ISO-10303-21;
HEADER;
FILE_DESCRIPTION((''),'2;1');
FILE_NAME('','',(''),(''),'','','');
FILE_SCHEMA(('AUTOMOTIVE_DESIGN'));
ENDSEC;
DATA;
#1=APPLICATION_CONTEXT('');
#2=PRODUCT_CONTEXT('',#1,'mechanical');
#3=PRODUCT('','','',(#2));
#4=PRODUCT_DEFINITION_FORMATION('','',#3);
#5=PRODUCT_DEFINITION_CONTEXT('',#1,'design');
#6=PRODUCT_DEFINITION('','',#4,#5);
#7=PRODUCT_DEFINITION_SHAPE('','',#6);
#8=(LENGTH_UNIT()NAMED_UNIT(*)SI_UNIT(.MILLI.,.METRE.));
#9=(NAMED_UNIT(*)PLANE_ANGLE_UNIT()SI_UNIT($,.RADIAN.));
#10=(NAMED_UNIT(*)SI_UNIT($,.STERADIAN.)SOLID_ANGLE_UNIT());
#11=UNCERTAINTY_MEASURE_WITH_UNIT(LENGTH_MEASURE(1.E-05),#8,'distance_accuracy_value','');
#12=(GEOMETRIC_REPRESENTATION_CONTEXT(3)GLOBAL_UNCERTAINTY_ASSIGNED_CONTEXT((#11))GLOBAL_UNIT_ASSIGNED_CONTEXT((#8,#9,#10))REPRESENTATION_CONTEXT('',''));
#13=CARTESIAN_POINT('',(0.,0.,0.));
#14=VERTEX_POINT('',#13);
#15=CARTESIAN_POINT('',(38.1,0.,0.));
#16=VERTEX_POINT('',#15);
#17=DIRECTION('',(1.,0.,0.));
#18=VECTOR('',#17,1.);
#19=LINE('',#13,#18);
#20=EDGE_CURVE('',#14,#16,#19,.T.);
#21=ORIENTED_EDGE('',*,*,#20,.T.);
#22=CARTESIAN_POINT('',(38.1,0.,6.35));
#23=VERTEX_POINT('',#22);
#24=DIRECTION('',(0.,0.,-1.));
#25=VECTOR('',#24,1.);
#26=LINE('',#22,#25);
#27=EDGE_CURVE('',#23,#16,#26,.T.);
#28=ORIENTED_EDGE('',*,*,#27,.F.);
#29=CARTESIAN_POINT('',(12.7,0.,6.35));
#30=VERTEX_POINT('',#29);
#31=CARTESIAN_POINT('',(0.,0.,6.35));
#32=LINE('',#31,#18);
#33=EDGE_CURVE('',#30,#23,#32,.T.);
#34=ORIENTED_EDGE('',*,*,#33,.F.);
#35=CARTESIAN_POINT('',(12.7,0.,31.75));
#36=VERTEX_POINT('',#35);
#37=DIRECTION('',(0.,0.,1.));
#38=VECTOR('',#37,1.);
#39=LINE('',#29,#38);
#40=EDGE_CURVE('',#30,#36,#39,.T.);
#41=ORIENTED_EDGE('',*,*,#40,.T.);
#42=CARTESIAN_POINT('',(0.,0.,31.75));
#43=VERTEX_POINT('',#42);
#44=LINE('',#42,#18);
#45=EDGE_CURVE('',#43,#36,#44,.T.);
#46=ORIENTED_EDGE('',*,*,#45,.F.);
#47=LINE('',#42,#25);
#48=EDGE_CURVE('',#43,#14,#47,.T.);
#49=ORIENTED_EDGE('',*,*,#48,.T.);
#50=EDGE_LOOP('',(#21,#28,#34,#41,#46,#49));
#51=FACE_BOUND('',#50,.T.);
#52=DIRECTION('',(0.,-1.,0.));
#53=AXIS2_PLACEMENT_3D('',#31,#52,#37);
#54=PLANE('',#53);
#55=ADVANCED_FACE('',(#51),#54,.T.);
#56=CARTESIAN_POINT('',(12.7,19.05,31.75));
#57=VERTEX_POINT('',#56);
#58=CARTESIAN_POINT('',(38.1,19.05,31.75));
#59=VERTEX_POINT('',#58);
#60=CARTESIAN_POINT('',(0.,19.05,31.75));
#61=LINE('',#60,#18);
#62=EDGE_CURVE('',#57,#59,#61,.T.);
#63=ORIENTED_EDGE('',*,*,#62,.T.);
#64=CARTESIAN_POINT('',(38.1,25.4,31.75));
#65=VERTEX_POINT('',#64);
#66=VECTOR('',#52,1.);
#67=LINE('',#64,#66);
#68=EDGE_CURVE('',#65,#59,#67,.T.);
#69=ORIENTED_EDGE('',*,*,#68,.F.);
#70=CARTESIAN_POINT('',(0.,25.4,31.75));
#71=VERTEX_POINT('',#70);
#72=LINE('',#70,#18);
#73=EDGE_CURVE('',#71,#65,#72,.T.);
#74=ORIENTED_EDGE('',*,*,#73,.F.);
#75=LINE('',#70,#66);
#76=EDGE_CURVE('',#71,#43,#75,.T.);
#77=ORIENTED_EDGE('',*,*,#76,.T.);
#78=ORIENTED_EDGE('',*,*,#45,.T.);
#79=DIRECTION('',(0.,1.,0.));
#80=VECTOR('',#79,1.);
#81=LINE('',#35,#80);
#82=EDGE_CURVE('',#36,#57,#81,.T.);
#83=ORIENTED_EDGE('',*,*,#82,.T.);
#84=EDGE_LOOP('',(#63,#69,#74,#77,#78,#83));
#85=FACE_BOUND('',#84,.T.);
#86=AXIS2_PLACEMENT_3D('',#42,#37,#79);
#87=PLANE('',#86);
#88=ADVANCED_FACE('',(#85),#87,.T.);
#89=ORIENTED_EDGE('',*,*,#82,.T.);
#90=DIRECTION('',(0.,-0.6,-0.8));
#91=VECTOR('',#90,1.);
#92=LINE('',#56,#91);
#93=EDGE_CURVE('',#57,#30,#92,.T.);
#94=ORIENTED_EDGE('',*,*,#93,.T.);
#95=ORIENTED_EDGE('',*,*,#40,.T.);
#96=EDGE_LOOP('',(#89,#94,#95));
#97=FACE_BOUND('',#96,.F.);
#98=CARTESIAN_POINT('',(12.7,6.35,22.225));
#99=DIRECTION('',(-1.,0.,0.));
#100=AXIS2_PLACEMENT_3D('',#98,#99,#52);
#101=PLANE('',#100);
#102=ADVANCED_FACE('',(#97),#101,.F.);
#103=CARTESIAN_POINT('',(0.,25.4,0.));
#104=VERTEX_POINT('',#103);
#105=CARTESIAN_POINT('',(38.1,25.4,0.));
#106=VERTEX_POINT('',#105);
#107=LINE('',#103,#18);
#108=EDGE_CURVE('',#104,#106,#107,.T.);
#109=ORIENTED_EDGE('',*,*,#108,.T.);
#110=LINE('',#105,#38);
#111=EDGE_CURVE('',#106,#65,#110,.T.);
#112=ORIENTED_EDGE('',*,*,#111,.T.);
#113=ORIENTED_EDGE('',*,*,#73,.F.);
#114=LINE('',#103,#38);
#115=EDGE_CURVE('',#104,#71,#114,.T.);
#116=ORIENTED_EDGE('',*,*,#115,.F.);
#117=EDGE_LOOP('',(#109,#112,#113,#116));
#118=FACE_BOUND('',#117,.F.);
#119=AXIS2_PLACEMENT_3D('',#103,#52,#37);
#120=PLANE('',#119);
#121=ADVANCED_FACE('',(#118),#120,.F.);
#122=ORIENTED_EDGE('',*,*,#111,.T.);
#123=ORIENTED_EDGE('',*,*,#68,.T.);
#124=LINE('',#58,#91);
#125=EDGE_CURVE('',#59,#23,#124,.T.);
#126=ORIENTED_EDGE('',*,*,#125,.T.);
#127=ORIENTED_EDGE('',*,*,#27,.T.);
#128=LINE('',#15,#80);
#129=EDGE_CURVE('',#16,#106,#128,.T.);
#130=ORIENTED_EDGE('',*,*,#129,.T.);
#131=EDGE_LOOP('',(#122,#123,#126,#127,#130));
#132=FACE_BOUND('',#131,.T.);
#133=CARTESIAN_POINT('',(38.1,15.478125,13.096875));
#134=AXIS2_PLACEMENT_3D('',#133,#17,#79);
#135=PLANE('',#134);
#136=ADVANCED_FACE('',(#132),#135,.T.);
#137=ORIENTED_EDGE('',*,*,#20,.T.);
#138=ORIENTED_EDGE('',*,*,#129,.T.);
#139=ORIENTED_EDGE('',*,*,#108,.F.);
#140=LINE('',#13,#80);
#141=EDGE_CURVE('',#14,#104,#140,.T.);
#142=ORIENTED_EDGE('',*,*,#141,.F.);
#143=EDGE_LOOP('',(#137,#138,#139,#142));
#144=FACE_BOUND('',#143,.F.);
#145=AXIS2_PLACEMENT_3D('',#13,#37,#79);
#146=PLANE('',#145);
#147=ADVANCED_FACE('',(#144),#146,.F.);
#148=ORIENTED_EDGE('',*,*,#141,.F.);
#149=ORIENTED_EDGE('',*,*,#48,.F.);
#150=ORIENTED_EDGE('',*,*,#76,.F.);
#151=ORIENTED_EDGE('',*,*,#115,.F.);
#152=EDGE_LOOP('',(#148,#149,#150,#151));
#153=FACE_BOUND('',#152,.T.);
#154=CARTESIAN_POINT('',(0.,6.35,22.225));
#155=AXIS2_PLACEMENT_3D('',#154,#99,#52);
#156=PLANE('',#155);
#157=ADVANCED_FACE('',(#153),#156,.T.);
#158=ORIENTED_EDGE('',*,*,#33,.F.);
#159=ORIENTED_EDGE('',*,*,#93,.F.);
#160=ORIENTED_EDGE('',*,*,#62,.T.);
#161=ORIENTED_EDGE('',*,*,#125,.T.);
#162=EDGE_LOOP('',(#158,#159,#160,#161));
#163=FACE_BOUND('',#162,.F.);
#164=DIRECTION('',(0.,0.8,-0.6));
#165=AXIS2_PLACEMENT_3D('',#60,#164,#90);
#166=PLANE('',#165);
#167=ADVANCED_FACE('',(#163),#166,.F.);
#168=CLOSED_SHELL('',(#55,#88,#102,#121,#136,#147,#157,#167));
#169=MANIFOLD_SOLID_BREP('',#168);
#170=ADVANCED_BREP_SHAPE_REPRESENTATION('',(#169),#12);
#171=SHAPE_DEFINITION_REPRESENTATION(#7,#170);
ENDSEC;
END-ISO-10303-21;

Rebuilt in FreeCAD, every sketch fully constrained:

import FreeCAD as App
import Part
import Sketcher
Q = App.Units.Quantity

doc = App.newDocument("Part")
body = doc.addObject("PartDesign::Body", "Body")

sketch1 = doc.addObject("Sketcher::SketchObject", "Sketch")
body.addObject(sketch1)
sketch1.AttachmentSupport = (doc.YZ_Plane, [""])
sketch1.MapMode = "FlatFace"
sketch1.addGeometry([
    Part.LineSegment(App.Vector(0, 6, 0), App.Vector(0, 0, 0)),
    Part.LineSegment(App.Vector(0, 0, 0), App.Vector(25, 0, 0)),
    Part.LineSegment(App.Vector(25, 0, 0), App.Vector(25, 32, 0)),
    Part.LineSegment(App.Vector(25, 32, 0), App.Vector(19, 32, 0)),
    Part.LineSegment(App.Vector(19, 32, 0), App.Vector(0, 6, 0)),
], False)
sketch1.addConstraint([
    Sketcher.Constraint("Coincident", 0, 2, 1, 1),
    Sketcher.Constraint("Coincident", 1, 2, 2, 1),
    Sketcher.Constraint("Coincident", 2, 2, 3, 1),
    Sketcher.Constraint("Coincident", 3, 2, 4, 1),
    Sketcher.Constraint("Coincident", 4, 2, 0, 1),
    Sketcher.Constraint("Vertical", 0),
    Sketcher.Constraint("Horizontal", 1),
    Sketcher.Constraint("Vertical", 2),
    Sketcher.Constraint("Horizontal", 3),
    Sketcher.Constraint("Coincident", 0, 2, -1, 1),
    Sketcher.Constraint("Equal", 3, 0),
    Sketcher.Constraint("DistanceX", 1, 1, 1, 2, Q("1 in")),
    Sketcher.Constraint("DistanceY", 4, 2, 3, 2, Q("1 in")),
    Sketcher.Constraint("DistanceX", 3, 2, 3, 1, Q("0.25 in")),
])
pad1 = doc.addObject("PartDesign::Pad", "Pad")
body.addObject(pad1)
pad1.Profile = sketch1
pad1.Length = Q("1.5 in")

sketch2 = doc.addObject("Sketcher::SketchObject", "Sketch001")
body.addObject(sketch2)
sketch2.AttachmentSupport = (doc.YZ_Plane, [""])
sketch2.MapMode = "FlatFace"
sketch2.addGeometry([
    Part.LineSegment(App.Vector(0, 32, 0), App.Vector(19, 32, 0)),
    Part.LineSegment(App.Vector(19, 32, 0), App.Vector(0, 6, 0)),
    Part.LineSegment(App.Vector(0, 6, 0), App.Vector(0, 32, 0)),
], False)
sketch2.addConstraint([
    Sketcher.Constraint("Coincident", 0, 2, 1, 1),
    Sketcher.Constraint("Coincident", 1, 2, 2, 1),
    Sketcher.Constraint("Coincident", 2, 2, 0, 1),
    Sketcher.Constraint("Horizontal", 0),
    Sketcher.Constraint("Vertical", 2),
    Sketcher.Constraint("PointOnObject", 1, 2, -2),
    Sketcher.Constraint("DistanceY", 2, 1, 2, 2, Q("1 in")),
    Sketcher.Constraint("DistanceX", 0, 1, 0, 2, Q("0.75 in")),
    Sketcher.Constraint("DistanceY", -1, 1, 0, 2, Q("1.25 in")),
])
pad2 = doc.addObject("PartDesign::Pad", "Pad001")
body.addObject(pad2)
pad2.Profile = sketch2
pad2.Length = Q("0.5 in")

doc.recompute()
